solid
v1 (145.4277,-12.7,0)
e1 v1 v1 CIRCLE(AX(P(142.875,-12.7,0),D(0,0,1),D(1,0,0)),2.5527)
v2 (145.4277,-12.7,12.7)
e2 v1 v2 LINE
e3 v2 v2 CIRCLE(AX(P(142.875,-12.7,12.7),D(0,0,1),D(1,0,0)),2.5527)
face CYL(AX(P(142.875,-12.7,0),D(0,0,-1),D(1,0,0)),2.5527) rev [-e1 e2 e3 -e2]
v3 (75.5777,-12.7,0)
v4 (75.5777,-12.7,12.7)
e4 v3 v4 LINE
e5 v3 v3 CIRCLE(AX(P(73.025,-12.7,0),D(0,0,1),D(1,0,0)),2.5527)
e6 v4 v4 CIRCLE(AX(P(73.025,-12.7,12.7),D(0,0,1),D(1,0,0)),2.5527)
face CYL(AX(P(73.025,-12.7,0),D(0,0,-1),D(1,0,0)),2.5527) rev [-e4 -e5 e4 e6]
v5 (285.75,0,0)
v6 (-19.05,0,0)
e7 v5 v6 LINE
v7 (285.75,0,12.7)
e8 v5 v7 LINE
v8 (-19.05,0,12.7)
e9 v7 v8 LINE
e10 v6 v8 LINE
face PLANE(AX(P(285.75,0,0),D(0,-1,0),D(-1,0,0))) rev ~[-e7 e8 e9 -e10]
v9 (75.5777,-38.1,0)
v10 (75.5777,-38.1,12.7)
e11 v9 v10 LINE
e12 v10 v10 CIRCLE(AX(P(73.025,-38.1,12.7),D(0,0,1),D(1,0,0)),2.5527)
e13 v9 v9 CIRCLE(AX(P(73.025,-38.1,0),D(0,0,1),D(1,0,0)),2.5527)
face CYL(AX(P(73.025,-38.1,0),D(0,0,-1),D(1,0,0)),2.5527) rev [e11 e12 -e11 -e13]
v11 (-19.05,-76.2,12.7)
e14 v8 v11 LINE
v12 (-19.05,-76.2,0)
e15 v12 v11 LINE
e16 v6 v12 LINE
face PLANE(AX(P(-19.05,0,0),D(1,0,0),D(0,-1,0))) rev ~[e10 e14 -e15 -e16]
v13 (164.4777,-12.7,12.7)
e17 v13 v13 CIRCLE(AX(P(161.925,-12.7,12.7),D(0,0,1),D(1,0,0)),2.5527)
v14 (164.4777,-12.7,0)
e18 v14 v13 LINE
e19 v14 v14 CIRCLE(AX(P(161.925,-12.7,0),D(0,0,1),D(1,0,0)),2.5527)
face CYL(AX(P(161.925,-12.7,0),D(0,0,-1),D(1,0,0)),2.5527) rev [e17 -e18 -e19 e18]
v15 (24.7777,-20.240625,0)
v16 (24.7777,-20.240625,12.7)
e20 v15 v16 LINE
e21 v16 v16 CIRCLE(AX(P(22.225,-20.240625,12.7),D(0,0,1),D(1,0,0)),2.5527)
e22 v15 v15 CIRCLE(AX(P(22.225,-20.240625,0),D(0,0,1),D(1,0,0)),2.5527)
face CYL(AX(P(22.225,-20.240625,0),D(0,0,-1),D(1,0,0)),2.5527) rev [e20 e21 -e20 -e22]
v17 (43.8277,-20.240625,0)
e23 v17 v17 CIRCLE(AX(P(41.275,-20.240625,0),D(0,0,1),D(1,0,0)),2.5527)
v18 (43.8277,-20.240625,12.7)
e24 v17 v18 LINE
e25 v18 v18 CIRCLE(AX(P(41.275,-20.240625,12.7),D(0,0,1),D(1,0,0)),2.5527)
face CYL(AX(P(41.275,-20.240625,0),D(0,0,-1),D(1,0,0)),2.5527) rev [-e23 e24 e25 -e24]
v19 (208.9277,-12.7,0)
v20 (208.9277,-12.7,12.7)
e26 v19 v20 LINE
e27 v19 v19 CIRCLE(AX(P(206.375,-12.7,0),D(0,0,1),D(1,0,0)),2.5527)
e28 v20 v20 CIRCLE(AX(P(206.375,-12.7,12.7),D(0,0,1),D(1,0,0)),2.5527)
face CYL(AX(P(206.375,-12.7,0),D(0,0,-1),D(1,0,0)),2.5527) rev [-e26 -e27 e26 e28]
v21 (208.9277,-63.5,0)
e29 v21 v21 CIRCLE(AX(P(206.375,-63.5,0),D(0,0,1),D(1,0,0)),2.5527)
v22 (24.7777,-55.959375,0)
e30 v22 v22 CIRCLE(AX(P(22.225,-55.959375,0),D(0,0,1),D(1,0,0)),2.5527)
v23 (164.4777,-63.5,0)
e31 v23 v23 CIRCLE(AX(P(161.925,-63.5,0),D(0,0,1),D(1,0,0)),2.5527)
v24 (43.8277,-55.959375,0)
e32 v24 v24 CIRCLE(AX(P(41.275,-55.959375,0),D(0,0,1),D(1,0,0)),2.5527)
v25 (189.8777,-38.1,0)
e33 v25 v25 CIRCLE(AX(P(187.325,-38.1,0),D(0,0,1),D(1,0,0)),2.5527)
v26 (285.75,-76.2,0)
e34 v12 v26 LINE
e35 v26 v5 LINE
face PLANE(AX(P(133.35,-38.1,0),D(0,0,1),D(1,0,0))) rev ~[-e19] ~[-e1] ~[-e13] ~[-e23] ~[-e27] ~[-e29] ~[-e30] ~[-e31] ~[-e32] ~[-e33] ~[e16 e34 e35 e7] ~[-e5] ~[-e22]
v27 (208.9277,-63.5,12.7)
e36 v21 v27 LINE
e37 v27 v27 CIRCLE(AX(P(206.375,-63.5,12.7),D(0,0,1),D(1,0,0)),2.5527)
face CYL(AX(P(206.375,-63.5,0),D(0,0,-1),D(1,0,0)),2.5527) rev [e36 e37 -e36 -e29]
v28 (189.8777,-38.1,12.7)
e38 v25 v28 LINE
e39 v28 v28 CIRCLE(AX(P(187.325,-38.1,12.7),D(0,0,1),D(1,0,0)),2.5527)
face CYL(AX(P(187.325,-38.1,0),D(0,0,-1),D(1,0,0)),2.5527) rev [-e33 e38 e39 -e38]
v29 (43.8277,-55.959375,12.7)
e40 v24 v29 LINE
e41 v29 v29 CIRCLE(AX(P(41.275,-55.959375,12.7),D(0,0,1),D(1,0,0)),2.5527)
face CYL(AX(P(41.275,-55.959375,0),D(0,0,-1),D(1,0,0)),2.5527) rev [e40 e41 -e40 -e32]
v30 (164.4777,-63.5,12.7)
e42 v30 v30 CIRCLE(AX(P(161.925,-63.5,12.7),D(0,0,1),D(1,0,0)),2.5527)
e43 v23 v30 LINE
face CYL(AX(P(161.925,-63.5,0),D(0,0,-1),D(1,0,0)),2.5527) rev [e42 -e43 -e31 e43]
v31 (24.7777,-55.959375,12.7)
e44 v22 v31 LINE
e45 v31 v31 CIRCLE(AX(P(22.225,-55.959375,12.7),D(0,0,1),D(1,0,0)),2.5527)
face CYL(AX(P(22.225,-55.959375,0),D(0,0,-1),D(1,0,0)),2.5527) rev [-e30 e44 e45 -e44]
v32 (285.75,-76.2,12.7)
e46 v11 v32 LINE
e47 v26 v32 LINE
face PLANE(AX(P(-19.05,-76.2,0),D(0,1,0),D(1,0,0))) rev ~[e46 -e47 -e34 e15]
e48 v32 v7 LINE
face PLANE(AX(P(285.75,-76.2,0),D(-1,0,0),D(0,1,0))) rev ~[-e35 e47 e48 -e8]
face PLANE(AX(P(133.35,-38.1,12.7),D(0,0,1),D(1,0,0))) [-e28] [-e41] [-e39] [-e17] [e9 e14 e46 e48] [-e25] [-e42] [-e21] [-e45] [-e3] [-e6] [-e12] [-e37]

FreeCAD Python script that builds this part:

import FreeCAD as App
import Part
import Sketcher

V = App.Vector
Q = App.Units.Quantity


def add_polygon(sketch, points):
    """Adds a closed chain of lines whose ends are joined by coincident constraints."""
    first, n = sketch.GeometryCount, len(points)
    for a, b in zip(points, points[1:] + points[:1]):
        sketch.addGeometry(Part.LineSegment(App.Vector(*a, 0), App.Vector(*b, 0)), False)
    for i in range(n):
        sketch.addConstraint(Sketcher.Constraint("Coincident", first + i, 2, first + (i + 1) % n, 1))

doc = App.newDocument("Part")
body = doc.addObject("PartDesign::Body", "Body")

sketch1 = doc.addObject("Sketcher::SketchObject", "Sketch")
body.addObject(sketch1)
sketch1.AttachmentSupport = (doc.XY_Plane, [""])
sketch1.MapMode = "FlatFace"
add_polygon(sketch1, [(285.75, 0), (-19.05, 0), (-19.05, -76.2), (285.75, -76.2)])
sketch1.addGeometry(Part.Circle(V(22.225, -55.959375, 0), V(0, 0, 1), 2.5527), False)
sketch1.addGeometry(Part.Circle(V(41.275, -55.959375, 0), V(0, 0, 1), 2.5527), False)
sketch1.addGeometry(Part.Circle(V(73.025, -38.1, 0), V(0, 0, 1), 2.5527), False)
sketch1.addGeometry(Part.Circle(V(161.925, -63.5, 0), V(0, 0, 1), 2.5527), False)
sketch1.addGeometry(Part.Circle(V(206.375, -63.5, 0), V(0, 0, 1), 2.5527), False)
sketch1.addGeometry(Part.Circle(V(187.325, -38.1, 0), V(0, 0, 1), 2.5527), False)
sketch1.addGeometry(Part.Circle(V(22.225, -20.240625, 0), V(0, 0, 1), 2.5527), False)
sketch1.addGeometry(Part.Circle(V(41.275, -20.240625, 0), V(0, 0, 1), 2.5527), False)
sketch1.addGeometry(Part.Circle(V(73.025, -12.7, 0), V(0, 0, 1), 2.5527), False)
sketch1.addGeometry(Part.Circle(V(142.875, -12.7, 0), V(0, 0, 1), 2.5527), False)
sketch1.addGeometry(Part.Circle(V(161.925, -12.7, 0), V(0, 0, 1), 2.5527), False)
sketch1.addGeometry(Part.Circle(V(206.375, -12.7, 0), V(0, 0, 1), 2.5527), False)
sketch1.addConstraint(Sketcher.Constraint("Horizontal", 0))
sketch1.addConstraint(Sketcher.Constraint("Vertical", 1))
sketch1.addConstraint(Sketcher.Constraint("Horizontal", 2))
sketch1.addConstraint(Sketcher.Constraint("Vertical", 3))
sketch1.addConstraint(Sketcher.Constraint("Equal", 4, 5))
sketch1.addConstraint(Sketcher.Constraint("Equal", 5, 6))
sketch1.addConstraint(Sketcher.Constraint("Equal", 6, 7))
sketch1.addConstraint(Sketcher.Constraint("Equal", 7, 8))
sketch1.addConstraint(Sketcher.Constraint("Equal", 8, 9))
sketch1.addConstraint(Sketcher.Constraint("Equal", 9, 10))
sketch1.addConstraint(Sketcher.Constraint("Equal", 10, 11))
sketch1.addConstraint(Sketcher.Constraint("Equal", 11, 12))
sketch1.addConstraint(Sketcher.Constraint("Equal", 12, 13))
sketch1.addConstraint(Sketcher.Constraint("Equal", 13, 14))
sketch1.addConstraint(Sketcher.Constraint("Equal", 14, 15))
sketch1.addConstraint(Sketcher.Constraint("PointOnObject", 0, 2, -1))
sketch1.addConstraint(Sketcher.Constraint("Horizontal", 4, 3, 5, 3))
sketch1.addConstraint(Sketcher.Constraint("Horizontal", 7, 3, 8, 3))
sketch1.addConstraint(Sketcher.Constraint("Horizontal", 6, 3, 9, 3))
sketch1.addConstraint(Sketcher.Constraint("Horizontal", 10, 3, 11, 3))
sketch1.addConstraint(Sketcher.Constraint("Horizontal", 12, 3, 13, 3))
sketch1.addConstraint(Sketcher.Constraint("Horizontal", 13, 3, 14, 3))
sketch1.addConstraint(Sketcher.Constraint("Horizontal", 14, 3, 15, 3))
sketch1.addConstraint(Sketcher.Constraint("Vertical", 4, 3, 10, 3))
sketch1.addConstraint(Sketcher.Constraint("Vertical", 5, 3, 11, 3))
sketch1.addConstraint(Sketcher.Constraint("Vertical", 6, 3, 12, 3))
sketch1.addConstraint(Sketcher.Constraint("Vertical", 7, 3, 14, 3))
sketch1.addConstraint(Sketcher.Constraint("Vertical", 8, 3, 15, 3))
sketch1.addConstraint(Sketcher.Constraint("DistanceX", 0, 2, 0, 1, Q("12 in")))
sketch1.addConstraint(Sketcher.Constraint("DistanceY", 1, 2, 1, 1, Q("3 in")))
sketch1.addConstraint(Sketcher.Constraint("Diameter", 4, Q("0.201 in")))
sketch1.addConstraint(Sketcher.Constraint("DistanceX", 4, 3, 6, 3, Q("2 in")))
sketch1.addConstraint(Sketcher.Constraint("DistanceY", 7, 3, 6, 3, Q("1 in")))
sketch1.addConstraint(Sketcher.Constraint("DistanceX", 7, 3, 9, 3, Q("1 in")))
sketch1.addConstraint(Sketcher.Constraint("DistanceY", 6, 3, 12, 3, Q("1 in")))
sketch1.addConstraint(Sketcher.Constraint("DistanceY", 6, 3, -1, 1, Q("1.5 in")))
sketch1.addConstraint(Sketcher.Constraint("DistanceX", 6, 3, 7, 3, Q("3.5 in")))
sketch1.addConstraint(Sketcher.Constraint("DistanceX", 5, 3, 8, 3, Q("6.5 in")))
sketch1.addConstraint(Sketcher.Constraint("DistanceX", 13, 3, 8, 3, Q("2.5 in")))
sketch1.addConstraint(Sketcher.Constraint("DistanceX", 0, 2, -1, 1, Q("0.75 in")))
sketch1.addConstraint(Sketcher.Constraint("DistanceX", 4, 3, 5, 3, Q("0.75 in")))
sketch1.addConstraint(Sketcher.Constraint("DistanceX", -1, 1, 4, 3, Q("0.875 in")))
sketch1.addConstraint(Sketcher.Constraint("DistanceY", 4, 3, -1, 1, Q("2.203125 in")))
sketch1.addConstraint(Sketcher.Constraint("DistanceY", 10, 3, -1, 1, Q("0.796875 in")))
pad1 = doc.addObject("PartDesign::Pad", "Pad")
body.addObject(pad1)
pad1.Profile = sketch1
pad1.Length = Q("0.5 in")

doc.recompute()
